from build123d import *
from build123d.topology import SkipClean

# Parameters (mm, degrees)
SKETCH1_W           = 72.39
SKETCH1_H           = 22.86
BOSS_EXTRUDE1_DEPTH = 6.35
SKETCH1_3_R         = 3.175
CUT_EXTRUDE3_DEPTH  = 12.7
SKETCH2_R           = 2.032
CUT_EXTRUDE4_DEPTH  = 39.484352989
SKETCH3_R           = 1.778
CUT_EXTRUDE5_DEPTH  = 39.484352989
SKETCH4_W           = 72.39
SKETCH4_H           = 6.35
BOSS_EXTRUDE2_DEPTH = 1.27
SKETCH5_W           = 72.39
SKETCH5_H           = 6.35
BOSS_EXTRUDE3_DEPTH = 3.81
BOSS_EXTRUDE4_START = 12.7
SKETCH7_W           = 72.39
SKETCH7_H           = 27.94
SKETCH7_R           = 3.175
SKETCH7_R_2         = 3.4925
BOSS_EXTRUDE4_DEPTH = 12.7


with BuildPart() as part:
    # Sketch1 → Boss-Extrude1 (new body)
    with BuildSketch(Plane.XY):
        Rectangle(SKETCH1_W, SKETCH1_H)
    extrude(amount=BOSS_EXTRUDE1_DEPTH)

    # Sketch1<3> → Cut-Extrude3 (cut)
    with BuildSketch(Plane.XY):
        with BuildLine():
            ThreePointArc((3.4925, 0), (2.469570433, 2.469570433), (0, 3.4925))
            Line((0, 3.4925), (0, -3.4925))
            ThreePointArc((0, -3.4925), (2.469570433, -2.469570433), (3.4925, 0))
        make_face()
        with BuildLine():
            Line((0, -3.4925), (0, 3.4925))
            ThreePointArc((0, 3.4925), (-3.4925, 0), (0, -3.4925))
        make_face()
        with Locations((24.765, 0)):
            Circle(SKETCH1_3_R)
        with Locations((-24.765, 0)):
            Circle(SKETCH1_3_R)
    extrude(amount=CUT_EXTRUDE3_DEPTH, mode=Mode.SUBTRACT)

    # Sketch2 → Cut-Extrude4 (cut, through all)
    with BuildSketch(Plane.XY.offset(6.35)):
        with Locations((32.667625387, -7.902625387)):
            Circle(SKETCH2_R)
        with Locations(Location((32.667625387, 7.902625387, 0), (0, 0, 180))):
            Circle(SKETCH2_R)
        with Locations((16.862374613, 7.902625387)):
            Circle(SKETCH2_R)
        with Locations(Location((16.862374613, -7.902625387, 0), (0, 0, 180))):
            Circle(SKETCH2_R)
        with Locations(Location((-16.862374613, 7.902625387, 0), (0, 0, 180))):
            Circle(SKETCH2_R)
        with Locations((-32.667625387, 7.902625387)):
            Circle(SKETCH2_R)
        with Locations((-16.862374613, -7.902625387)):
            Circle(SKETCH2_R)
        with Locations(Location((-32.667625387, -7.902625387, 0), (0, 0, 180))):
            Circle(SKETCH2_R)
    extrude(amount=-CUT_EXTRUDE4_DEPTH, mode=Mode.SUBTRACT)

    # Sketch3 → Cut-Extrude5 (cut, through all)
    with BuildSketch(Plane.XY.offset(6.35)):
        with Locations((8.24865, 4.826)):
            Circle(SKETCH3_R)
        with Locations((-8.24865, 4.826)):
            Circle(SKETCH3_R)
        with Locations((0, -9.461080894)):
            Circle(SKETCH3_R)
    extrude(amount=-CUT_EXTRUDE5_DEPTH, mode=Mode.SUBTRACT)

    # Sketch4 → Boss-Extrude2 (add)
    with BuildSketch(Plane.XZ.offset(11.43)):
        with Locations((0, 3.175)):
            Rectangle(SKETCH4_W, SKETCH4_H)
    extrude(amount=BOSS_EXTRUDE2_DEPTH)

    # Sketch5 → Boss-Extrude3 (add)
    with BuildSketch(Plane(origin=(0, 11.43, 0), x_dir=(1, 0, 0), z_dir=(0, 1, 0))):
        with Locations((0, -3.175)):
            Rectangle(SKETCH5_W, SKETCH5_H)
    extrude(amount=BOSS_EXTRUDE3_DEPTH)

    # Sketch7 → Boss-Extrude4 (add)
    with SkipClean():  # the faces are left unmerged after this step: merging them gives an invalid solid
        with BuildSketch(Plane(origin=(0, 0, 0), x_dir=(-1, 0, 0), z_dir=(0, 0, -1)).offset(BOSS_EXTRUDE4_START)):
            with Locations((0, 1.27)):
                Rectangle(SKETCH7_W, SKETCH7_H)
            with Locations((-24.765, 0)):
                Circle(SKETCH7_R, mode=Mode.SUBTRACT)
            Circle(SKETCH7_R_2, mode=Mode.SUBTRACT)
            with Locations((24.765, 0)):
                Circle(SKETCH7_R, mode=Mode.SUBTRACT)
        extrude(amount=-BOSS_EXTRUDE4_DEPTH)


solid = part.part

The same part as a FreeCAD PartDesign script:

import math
import FreeCAD as App
import Part
import Sketcher

V = App.Vector
Q = App.Units.Quantity

doc = App.newDocument("Part")
body = doc.addObject("PartDesign::Body", "Body")

sketch1 = body.newObject("Sketcher::SketchObject", "Sketch")
sketch1.AttachmentSupport = (doc.getObject("XY_Plane"), [""])
sketch1.MapMode = "FlatFace"
sketch1.addGeometry([
    Part.LineSegment(V(-36.195, 11.43, 0), V(-36.195, -11.43, 0)),
    Part.LineSegment(V(-36.195, -11.43, 0), V(36.195, -11.43, 0)),
    Part.LineSegment(V(36.195, -11.43, 0), V(36.195, 11.43, 0)),
    Part.LineSegment(V(36.195, 11.43, 0), V(-36.195, 11.43, 0)),
], False)
sketch1.addConstraint([
    Sketcher.Constraint("Coincident", 0, 2, 1, 1),
    Sketcher.Constraint("Coincident", 1, 2, 2, 1),
    Sketcher.Constraint("Coincident", 2, 2, 3, 1),
    Sketcher.Constraint("Coincident", 3, 2, 0, 1),
    Sketcher.Constraint("Vertical", 0),
    Sketcher.Constraint("Horizontal", 1),
    Sketcher.Constraint("Vertical", 2),
    Sketcher.Constraint("Horizontal", 3),
    Sketcher.Constraint("Symmetric", 0, 2, 2, 2, -1, 1),
    Sketcher.Constraint("DistanceY", 0, 2, 0, 1, Q("0.9 in")),
    Sketcher.Constraint("DistanceX", 1, 1, 1, 2, Q("2.85 in")),
])
pad1 = body.newObject("PartDesign::Pad", "Pad")
pad1.Profile = sketch1
pad1.Length = Q("0.25 in")

sketch2 = body.newObject("Sketcher::SketchObject", "Sketch001")
sketch2.AttachmentSupport = (doc.getObject("XY_Plane"), [""])
sketch2.MapMode = "FlatFace"
sketch2.addGeometry([
    Part.ArcOfCircle(Part.Circle(V(0, 0, 0), V(0, 0, 1), 3.4925), math.radians(0), math.radians(90)),
    Part.ArcOfCircle(Part.Circle(V(0, 0, 0), V(0, 0, 1), 3.4925), math.radians(90), math.radians(270)),
    Part.ArcOfCircle(Part.Circle(V(0, 0, 0), V(0, 0, 1), 3.4925), math.radians(-90), math.radians(0)),
    Part.Circle(V(24.765, 0, 0), V(0, 0, 1), 3.175),
    Part.Circle(V(-24.765, 0, 0), V(0, 0, 1), 3.175),
], False)
sketch2.addConstraint([
    Sketcher.Constraint("Tangent", 0, 2, 1, 1),
    Sketcher.Constraint("Tangent", 1, 2, 2, 1),
    Sketcher.Constraint("Tangent", 2, 2, 0, 1),
    Sketcher.Constraint("Coincident", 0, 3, -1, 1),
    Sketcher.Constraint("Equal", 3, 4),
    Sketcher.Constraint("Symmetric", 3, 3, 4, 3, -1, 1),
    Sketcher.Constraint("PointOnObject", 3, 3, -1),
    Sketcher.Constraint("PointOnObject", 0, 2, -2),
    Sketcher.Constraint("PointOnObject", 1, 2, -2),
    Sketcher.Constraint("PointOnObject", 2, 2, -1),
    Sketcher.Constraint("Diameter", 3, Q("0.25 in")),
    Sketcher.Constraint("Radius", 0, Q("0.1375 in")),
    Sketcher.Constraint("DistanceX", 4, 3, 3, 3, Q("1.95 in")),
])
pocket1 = body.newObject("PartDesign::Pocket", "Pocket")
pocket1.Profile = sketch2
pocket1.Length = Q("0.5 in")
pocket1.Reversed = True

sketch3 = body.newObject("Sketcher::SketchObject", "Sketch002")
sketch3.AttachmentSupport = (doc.getObject("XY_Plane"), [""])
sketch3.MapMode = "FlatFace"
sketch3.AttachmentOffset = App.Placement(V(0, 0, 0.25 * 25.4), App.Rotation())
sketch3.addGeometry([
    Part.Circle(V(32.667625, -7.902625, 0), V(0, 0, 1), 2.032),
    Part.Circle(V(32.667625, 7.902625, 0), V(0, 0, 1), 2.032),
    Part.Circle(V(16.862375, 7.902625, 0), V(0, 0, 1), 2.032),
    Part.Circle(V(16.862375, -7.902625, 0), V(0, 0, 1), 2.032),
    Part.Circle(V(-16.862375, 7.902625, 0), V(0, 0, 1), 2.032),
    Part.Circle(V(-32.667625, 7.902625, 0), V(0, 0, 1), 2.032),
    Part.Circle(V(-16.862375, -7.902625, 0), V(0, 0, 1), 2.032),
    Part.Circle(V(-32.667625, -7.902625, 0), V(0, 0, 1), 2.032),
], False)
sketch3.addConstraint([
    Sketcher.Constraint("Equal", 0, 1),
    Sketcher.Constraint("Equal", 1, 2),
    Sketcher.Constraint("Equal", 2, 3),
    Sketcher.Constraint("Equal", 3, 4),
    Sketcher.Constraint("Equal", 4, 5),
    Sketcher.Constraint("Equal", 5, 6),
    Sketcher.Constraint("Equal", 6, 7),
    Sketcher.Constraint("Symmetric", 3, 3, 4, 3, -1, 1),
    Sketcher.Constraint("Symmetric", 0, 3, 5, 3, -1, 1),
    Sketcher.Constraint("Symmetric", 2, 3, 6, 3, -1, 1),
    Sketcher.Constraint("Symmetric", 1, 3, 7, 3, -1, 1),
    Sketcher.Constraint("Symmetric", 2, 3, 4, 3, -2),
    Sketcher.Constraint("Symmetric", 1, 3, 5, 3, -2),
    Sketcher.Constraint("Horizontal", 1, 3, 2, 3),
    Sketcher.Constraint("Diameter", 0, Q("0.16 in")),
    Sketcher.Constraint("DistanceX", 4, 3, 1, 3, Q("1.95 in")),
    Sketcher.Constraint("DistanceY", 0, 3, 1, 3, 15.805251),
    Sketcher.Constraint("DistanceX", 2, 3, 1, 3, 15.805251),
])
pocket2 = body.newObject("PartDesign::Pocket", "Pocket001")
pocket2.Profile = sketch3
pocket2.Type = "ThroughAll"

sketch4 = body.newObject("Sketcher::SketchObject", "Sketch003")
sketch4.AttachmentSupport = (doc.getObject("XY_Plane"), [""])
sketch4.MapMode = "FlatFace"
sketch4.AttachmentOffset = App.Placement(V(0, 0, 0.25 * 25.4), App.Rotation())
sketch4.addGeometry([
    Part.Circle(V(8.24865, 4.826, 0), V(0, 0, 1), 1.778),
    Part.Circle(V(-8.24865, 4.826, 0), V(0, 0, 1), 1.778),
    Part.Circle(V(0, -9.461081, 0), V(0, 0, 1), 1.778),
], False)
sketch4.addConstraint([
    Sketcher.Constraint("Equal", 0, 1),
    Sketcher.Constraint("Equal", 1, 2),
    Sketcher.Constraint("Symmetric", 0, 3, 1, 3, -2),
    Sketcher.Constraint("PointOnObject", 2, 3, -2),
    Sketcher.Constraint("Diameter", 0, Q("0.14 in")),
    Sketcher.Constraint("DistanceY", -1, 1, 0, 3, Q("0.19 in")),
    Sketcher.Constraint("DistanceX", 1, 3, 0, 3, Q("0.6495 in")),
    Sketcher.Constraint("DistanceY", 2, 3, -1, 1, 9.461081),
])
pocket3 = body.newObject("PartDesign::Pocket", "Pocket002")
pocket3.Profile = sketch4
pocket3.Type = "ThroughAll"

sketch5 = body.newObject("Sketcher::SketchObject", "Sketch004")
sketch5.AttachmentSupport = (doc.getObject("XZ_Plane"), [""])
sketch5.MapMode = "FlatFace"
sketch5.AttachmentOffset = App.Placement(V(0, 0, 0.45 * 25.4), App.Rotation())
sketch5.addGeometry([
    Part.LineSegment(V(-36.195, 6.35, 0), V(-36.195, 0, 0)),
    Part.LineSegment(V(-36.195, 0, 0), V(36.195, 0, 0)),
    Part.LineSegment(V(36.195, 0, 0), V(36.195, 6.35, 0)),
    Part.LineSegment(V(36.195, 6.35, 0), V(-36.195, 6.35, 0)),
], False)
sketch5.addConstraint([
    Sketcher.Constraint("Coincident", 0, 2, 1, 1),
    Sketcher.Constraint("Coincident", 1, 2, 2, 1),
    Sketcher.Constraint("Coincident", 2, 2, 3, 1),
    Sketcher.Constraint("Coincident", 3, 2, 0, 1),
    Sketcher.Constraint("Vertical", 0),
    Sketcher.Constraint("Horizontal", 1),
    Sketcher.Constraint("Vertical", 2),
    Sketcher.Constraint("Horizontal", 3),
    Sketcher.Constraint("Symmetric", 0, 2, 1, 2, -1, 1),
    Sketcher.Constraint("DistanceX", 1, 1, 1, 2, Q("2.85 in")),
    Sketcher.Constraint("DistanceY", 0, 2, 0, 1, Q("0.25 in")),
])
pad2 = body.newObject("PartDesign::Pad", "Pad001")
pad2.Profile = sketch5
pad2.Length = Q("0.05 in")

sketch6 = body.newObject("Sketcher::SketchObject", "Sketch005")
sketch6.AttachmentSupport = (doc.getObject("XZ_Plane"), [""])
sketch6.MapMode = "FlatFace"
sketch6.AttachmentOffset = App.Placement(V(0, 0, -0.45 * 25.4), App.Rotation())
sketch6.addGeometry([
    Part.LineSegment(V(-36.195, 0, 0), V(-36.195, 6.35, 0)),
    Part.LineSegment(V(-36.195, 6.35, 0), V(36.195, 6.35, 0)),
    Part.LineSegment(V(36.195, 6.35, 0), V(36.195, 0, 0)),
    Part.LineSegment(V(36.195, 0, 0), V(-36.195, 0, 0)),
], False)
sketch6.addConstraint([
    Sketcher.Constraint("Coincident", 0, 2, 1, 1),
    Sketcher.Constraint("Coincident", 1, 2, 2, 1),
    Sketcher.Constraint("Coincident", 2, 2, 3, 1),
    Sketcher.Constraint("Coincident", 3, 2, 0, 1),
    Sketcher.Constraint("Vertical", 0),
    Sketcher.Constraint("Horizontal", 1),
    Sketcher.Constraint("Vertical", 2),
    Sketcher.Constraint("Horizontal", 3),
    Sketcher.Constraint("Symmetric", 2, 2, 3, 2, -1, 1),
    Sketcher.Constraint("DistanceX", 1, 1, 1, 2, Q("2.85 in")),
    Sketcher.Constraint("DistanceY", 0, 1, 0, 2, Q("0.25 in")),
])
pad3 = body.newObject("PartDesign::Pad", "Pad002")
pad3.Profile = sketch6
pad3.Length = Q("0.15 in")
pad3.Reversed = True

sketch7 = body.newObject("Sketcher::SketchObject", "Sketch006")
sketch7.AttachmentSupport = (doc.getObject("XY_Plane"), [""])
sketch7.MapMode = "FlatFace"
sketch7.AttachmentOffset = App.Placement(V(0, 0, -0.5 * 25.4), App.Rotation())
sketch7.addGeometry([
    Part.LineSegment(V(36.195, 15.24, 0), V(36.195, -12.7, 0)),
    Part.LineSegment(V(36.195, -12.7, 0), V(-36.195, -12.7, 0)),
    Part.LineSegment(V(-36.195, -12.7, 0), V(-36.195, 15.24, 0)),
    Part.LineSegment(V(-36.195, 15.24, 0), V(36.195, 15.24, 0)),
    Part.Circle(V(0, 0, 0), V(0, 0, 1), 3.4925),
    Part.Circle(V(24.765, 0, 0), V(0, 0, 1), 3.175),
    Part.Circle(V(-24.765, 0, 0), V(0, 0, 1), 3.175),
], False)
sketch7.addConstraint([
    Sketcher.Constraint("Coincident", 0, 2, 1, 1),
    Sketcher.Constraint("Coincident", 1, 2, 2, 1),
    Sketcher.Constraint("Coincident", 2, 2, 3, 1),
    Sketcher.Constraint("Coincident", 3, 2, 0, 1),
    Sketcher.Constraint("Vertical", 0),
    Sketcher.Constraint("Horizontal", 1),
    Sketcher.Constraint("Vertical", 2),
    Sketcher.Constraint("Horizontal", 3),
    Sketcher.Constraint("Coincident", 4, 3, -1, 1),
    Sketcher.Constraint("Equal", 5, 6),
    Sketcher.Constraint("Symmetric", 5, 3, 6, 3, -1, 1),
    Sketcher.Constraint("PointOnObject", 5, 3, -1),
    Sketcher.Constraint("Diameter", 5, Q("0.25 in")),
    Sketcher.Constraint("Diameter", 4, Q("0.275 in")),
    Sketcher.Constraint("DistanceY", 0, 2, 0, 1, Q("1.1 in")),
    Sketcher.Constraint("DistanceX", 1, 2, 1, 1, Q("2.85 in")),
    Sketcher.Constraint("DistanceY", 0, 2, -1, 1, Q("0.5 in")),
    Sketcher.Constraint("DistanceX", 6, 3, 0, 2, Q("2.4 in")),
    Sketcher.Constraint("DistanceX", 1, 2, 5, 3, Q("2.4 in")),
])
pad4 = body.newObject("PartDesign::Pad", "Pad003")
pad4.Profile = sketch7
pad4.Length = Q("0.5 in")

doc.recompute()
